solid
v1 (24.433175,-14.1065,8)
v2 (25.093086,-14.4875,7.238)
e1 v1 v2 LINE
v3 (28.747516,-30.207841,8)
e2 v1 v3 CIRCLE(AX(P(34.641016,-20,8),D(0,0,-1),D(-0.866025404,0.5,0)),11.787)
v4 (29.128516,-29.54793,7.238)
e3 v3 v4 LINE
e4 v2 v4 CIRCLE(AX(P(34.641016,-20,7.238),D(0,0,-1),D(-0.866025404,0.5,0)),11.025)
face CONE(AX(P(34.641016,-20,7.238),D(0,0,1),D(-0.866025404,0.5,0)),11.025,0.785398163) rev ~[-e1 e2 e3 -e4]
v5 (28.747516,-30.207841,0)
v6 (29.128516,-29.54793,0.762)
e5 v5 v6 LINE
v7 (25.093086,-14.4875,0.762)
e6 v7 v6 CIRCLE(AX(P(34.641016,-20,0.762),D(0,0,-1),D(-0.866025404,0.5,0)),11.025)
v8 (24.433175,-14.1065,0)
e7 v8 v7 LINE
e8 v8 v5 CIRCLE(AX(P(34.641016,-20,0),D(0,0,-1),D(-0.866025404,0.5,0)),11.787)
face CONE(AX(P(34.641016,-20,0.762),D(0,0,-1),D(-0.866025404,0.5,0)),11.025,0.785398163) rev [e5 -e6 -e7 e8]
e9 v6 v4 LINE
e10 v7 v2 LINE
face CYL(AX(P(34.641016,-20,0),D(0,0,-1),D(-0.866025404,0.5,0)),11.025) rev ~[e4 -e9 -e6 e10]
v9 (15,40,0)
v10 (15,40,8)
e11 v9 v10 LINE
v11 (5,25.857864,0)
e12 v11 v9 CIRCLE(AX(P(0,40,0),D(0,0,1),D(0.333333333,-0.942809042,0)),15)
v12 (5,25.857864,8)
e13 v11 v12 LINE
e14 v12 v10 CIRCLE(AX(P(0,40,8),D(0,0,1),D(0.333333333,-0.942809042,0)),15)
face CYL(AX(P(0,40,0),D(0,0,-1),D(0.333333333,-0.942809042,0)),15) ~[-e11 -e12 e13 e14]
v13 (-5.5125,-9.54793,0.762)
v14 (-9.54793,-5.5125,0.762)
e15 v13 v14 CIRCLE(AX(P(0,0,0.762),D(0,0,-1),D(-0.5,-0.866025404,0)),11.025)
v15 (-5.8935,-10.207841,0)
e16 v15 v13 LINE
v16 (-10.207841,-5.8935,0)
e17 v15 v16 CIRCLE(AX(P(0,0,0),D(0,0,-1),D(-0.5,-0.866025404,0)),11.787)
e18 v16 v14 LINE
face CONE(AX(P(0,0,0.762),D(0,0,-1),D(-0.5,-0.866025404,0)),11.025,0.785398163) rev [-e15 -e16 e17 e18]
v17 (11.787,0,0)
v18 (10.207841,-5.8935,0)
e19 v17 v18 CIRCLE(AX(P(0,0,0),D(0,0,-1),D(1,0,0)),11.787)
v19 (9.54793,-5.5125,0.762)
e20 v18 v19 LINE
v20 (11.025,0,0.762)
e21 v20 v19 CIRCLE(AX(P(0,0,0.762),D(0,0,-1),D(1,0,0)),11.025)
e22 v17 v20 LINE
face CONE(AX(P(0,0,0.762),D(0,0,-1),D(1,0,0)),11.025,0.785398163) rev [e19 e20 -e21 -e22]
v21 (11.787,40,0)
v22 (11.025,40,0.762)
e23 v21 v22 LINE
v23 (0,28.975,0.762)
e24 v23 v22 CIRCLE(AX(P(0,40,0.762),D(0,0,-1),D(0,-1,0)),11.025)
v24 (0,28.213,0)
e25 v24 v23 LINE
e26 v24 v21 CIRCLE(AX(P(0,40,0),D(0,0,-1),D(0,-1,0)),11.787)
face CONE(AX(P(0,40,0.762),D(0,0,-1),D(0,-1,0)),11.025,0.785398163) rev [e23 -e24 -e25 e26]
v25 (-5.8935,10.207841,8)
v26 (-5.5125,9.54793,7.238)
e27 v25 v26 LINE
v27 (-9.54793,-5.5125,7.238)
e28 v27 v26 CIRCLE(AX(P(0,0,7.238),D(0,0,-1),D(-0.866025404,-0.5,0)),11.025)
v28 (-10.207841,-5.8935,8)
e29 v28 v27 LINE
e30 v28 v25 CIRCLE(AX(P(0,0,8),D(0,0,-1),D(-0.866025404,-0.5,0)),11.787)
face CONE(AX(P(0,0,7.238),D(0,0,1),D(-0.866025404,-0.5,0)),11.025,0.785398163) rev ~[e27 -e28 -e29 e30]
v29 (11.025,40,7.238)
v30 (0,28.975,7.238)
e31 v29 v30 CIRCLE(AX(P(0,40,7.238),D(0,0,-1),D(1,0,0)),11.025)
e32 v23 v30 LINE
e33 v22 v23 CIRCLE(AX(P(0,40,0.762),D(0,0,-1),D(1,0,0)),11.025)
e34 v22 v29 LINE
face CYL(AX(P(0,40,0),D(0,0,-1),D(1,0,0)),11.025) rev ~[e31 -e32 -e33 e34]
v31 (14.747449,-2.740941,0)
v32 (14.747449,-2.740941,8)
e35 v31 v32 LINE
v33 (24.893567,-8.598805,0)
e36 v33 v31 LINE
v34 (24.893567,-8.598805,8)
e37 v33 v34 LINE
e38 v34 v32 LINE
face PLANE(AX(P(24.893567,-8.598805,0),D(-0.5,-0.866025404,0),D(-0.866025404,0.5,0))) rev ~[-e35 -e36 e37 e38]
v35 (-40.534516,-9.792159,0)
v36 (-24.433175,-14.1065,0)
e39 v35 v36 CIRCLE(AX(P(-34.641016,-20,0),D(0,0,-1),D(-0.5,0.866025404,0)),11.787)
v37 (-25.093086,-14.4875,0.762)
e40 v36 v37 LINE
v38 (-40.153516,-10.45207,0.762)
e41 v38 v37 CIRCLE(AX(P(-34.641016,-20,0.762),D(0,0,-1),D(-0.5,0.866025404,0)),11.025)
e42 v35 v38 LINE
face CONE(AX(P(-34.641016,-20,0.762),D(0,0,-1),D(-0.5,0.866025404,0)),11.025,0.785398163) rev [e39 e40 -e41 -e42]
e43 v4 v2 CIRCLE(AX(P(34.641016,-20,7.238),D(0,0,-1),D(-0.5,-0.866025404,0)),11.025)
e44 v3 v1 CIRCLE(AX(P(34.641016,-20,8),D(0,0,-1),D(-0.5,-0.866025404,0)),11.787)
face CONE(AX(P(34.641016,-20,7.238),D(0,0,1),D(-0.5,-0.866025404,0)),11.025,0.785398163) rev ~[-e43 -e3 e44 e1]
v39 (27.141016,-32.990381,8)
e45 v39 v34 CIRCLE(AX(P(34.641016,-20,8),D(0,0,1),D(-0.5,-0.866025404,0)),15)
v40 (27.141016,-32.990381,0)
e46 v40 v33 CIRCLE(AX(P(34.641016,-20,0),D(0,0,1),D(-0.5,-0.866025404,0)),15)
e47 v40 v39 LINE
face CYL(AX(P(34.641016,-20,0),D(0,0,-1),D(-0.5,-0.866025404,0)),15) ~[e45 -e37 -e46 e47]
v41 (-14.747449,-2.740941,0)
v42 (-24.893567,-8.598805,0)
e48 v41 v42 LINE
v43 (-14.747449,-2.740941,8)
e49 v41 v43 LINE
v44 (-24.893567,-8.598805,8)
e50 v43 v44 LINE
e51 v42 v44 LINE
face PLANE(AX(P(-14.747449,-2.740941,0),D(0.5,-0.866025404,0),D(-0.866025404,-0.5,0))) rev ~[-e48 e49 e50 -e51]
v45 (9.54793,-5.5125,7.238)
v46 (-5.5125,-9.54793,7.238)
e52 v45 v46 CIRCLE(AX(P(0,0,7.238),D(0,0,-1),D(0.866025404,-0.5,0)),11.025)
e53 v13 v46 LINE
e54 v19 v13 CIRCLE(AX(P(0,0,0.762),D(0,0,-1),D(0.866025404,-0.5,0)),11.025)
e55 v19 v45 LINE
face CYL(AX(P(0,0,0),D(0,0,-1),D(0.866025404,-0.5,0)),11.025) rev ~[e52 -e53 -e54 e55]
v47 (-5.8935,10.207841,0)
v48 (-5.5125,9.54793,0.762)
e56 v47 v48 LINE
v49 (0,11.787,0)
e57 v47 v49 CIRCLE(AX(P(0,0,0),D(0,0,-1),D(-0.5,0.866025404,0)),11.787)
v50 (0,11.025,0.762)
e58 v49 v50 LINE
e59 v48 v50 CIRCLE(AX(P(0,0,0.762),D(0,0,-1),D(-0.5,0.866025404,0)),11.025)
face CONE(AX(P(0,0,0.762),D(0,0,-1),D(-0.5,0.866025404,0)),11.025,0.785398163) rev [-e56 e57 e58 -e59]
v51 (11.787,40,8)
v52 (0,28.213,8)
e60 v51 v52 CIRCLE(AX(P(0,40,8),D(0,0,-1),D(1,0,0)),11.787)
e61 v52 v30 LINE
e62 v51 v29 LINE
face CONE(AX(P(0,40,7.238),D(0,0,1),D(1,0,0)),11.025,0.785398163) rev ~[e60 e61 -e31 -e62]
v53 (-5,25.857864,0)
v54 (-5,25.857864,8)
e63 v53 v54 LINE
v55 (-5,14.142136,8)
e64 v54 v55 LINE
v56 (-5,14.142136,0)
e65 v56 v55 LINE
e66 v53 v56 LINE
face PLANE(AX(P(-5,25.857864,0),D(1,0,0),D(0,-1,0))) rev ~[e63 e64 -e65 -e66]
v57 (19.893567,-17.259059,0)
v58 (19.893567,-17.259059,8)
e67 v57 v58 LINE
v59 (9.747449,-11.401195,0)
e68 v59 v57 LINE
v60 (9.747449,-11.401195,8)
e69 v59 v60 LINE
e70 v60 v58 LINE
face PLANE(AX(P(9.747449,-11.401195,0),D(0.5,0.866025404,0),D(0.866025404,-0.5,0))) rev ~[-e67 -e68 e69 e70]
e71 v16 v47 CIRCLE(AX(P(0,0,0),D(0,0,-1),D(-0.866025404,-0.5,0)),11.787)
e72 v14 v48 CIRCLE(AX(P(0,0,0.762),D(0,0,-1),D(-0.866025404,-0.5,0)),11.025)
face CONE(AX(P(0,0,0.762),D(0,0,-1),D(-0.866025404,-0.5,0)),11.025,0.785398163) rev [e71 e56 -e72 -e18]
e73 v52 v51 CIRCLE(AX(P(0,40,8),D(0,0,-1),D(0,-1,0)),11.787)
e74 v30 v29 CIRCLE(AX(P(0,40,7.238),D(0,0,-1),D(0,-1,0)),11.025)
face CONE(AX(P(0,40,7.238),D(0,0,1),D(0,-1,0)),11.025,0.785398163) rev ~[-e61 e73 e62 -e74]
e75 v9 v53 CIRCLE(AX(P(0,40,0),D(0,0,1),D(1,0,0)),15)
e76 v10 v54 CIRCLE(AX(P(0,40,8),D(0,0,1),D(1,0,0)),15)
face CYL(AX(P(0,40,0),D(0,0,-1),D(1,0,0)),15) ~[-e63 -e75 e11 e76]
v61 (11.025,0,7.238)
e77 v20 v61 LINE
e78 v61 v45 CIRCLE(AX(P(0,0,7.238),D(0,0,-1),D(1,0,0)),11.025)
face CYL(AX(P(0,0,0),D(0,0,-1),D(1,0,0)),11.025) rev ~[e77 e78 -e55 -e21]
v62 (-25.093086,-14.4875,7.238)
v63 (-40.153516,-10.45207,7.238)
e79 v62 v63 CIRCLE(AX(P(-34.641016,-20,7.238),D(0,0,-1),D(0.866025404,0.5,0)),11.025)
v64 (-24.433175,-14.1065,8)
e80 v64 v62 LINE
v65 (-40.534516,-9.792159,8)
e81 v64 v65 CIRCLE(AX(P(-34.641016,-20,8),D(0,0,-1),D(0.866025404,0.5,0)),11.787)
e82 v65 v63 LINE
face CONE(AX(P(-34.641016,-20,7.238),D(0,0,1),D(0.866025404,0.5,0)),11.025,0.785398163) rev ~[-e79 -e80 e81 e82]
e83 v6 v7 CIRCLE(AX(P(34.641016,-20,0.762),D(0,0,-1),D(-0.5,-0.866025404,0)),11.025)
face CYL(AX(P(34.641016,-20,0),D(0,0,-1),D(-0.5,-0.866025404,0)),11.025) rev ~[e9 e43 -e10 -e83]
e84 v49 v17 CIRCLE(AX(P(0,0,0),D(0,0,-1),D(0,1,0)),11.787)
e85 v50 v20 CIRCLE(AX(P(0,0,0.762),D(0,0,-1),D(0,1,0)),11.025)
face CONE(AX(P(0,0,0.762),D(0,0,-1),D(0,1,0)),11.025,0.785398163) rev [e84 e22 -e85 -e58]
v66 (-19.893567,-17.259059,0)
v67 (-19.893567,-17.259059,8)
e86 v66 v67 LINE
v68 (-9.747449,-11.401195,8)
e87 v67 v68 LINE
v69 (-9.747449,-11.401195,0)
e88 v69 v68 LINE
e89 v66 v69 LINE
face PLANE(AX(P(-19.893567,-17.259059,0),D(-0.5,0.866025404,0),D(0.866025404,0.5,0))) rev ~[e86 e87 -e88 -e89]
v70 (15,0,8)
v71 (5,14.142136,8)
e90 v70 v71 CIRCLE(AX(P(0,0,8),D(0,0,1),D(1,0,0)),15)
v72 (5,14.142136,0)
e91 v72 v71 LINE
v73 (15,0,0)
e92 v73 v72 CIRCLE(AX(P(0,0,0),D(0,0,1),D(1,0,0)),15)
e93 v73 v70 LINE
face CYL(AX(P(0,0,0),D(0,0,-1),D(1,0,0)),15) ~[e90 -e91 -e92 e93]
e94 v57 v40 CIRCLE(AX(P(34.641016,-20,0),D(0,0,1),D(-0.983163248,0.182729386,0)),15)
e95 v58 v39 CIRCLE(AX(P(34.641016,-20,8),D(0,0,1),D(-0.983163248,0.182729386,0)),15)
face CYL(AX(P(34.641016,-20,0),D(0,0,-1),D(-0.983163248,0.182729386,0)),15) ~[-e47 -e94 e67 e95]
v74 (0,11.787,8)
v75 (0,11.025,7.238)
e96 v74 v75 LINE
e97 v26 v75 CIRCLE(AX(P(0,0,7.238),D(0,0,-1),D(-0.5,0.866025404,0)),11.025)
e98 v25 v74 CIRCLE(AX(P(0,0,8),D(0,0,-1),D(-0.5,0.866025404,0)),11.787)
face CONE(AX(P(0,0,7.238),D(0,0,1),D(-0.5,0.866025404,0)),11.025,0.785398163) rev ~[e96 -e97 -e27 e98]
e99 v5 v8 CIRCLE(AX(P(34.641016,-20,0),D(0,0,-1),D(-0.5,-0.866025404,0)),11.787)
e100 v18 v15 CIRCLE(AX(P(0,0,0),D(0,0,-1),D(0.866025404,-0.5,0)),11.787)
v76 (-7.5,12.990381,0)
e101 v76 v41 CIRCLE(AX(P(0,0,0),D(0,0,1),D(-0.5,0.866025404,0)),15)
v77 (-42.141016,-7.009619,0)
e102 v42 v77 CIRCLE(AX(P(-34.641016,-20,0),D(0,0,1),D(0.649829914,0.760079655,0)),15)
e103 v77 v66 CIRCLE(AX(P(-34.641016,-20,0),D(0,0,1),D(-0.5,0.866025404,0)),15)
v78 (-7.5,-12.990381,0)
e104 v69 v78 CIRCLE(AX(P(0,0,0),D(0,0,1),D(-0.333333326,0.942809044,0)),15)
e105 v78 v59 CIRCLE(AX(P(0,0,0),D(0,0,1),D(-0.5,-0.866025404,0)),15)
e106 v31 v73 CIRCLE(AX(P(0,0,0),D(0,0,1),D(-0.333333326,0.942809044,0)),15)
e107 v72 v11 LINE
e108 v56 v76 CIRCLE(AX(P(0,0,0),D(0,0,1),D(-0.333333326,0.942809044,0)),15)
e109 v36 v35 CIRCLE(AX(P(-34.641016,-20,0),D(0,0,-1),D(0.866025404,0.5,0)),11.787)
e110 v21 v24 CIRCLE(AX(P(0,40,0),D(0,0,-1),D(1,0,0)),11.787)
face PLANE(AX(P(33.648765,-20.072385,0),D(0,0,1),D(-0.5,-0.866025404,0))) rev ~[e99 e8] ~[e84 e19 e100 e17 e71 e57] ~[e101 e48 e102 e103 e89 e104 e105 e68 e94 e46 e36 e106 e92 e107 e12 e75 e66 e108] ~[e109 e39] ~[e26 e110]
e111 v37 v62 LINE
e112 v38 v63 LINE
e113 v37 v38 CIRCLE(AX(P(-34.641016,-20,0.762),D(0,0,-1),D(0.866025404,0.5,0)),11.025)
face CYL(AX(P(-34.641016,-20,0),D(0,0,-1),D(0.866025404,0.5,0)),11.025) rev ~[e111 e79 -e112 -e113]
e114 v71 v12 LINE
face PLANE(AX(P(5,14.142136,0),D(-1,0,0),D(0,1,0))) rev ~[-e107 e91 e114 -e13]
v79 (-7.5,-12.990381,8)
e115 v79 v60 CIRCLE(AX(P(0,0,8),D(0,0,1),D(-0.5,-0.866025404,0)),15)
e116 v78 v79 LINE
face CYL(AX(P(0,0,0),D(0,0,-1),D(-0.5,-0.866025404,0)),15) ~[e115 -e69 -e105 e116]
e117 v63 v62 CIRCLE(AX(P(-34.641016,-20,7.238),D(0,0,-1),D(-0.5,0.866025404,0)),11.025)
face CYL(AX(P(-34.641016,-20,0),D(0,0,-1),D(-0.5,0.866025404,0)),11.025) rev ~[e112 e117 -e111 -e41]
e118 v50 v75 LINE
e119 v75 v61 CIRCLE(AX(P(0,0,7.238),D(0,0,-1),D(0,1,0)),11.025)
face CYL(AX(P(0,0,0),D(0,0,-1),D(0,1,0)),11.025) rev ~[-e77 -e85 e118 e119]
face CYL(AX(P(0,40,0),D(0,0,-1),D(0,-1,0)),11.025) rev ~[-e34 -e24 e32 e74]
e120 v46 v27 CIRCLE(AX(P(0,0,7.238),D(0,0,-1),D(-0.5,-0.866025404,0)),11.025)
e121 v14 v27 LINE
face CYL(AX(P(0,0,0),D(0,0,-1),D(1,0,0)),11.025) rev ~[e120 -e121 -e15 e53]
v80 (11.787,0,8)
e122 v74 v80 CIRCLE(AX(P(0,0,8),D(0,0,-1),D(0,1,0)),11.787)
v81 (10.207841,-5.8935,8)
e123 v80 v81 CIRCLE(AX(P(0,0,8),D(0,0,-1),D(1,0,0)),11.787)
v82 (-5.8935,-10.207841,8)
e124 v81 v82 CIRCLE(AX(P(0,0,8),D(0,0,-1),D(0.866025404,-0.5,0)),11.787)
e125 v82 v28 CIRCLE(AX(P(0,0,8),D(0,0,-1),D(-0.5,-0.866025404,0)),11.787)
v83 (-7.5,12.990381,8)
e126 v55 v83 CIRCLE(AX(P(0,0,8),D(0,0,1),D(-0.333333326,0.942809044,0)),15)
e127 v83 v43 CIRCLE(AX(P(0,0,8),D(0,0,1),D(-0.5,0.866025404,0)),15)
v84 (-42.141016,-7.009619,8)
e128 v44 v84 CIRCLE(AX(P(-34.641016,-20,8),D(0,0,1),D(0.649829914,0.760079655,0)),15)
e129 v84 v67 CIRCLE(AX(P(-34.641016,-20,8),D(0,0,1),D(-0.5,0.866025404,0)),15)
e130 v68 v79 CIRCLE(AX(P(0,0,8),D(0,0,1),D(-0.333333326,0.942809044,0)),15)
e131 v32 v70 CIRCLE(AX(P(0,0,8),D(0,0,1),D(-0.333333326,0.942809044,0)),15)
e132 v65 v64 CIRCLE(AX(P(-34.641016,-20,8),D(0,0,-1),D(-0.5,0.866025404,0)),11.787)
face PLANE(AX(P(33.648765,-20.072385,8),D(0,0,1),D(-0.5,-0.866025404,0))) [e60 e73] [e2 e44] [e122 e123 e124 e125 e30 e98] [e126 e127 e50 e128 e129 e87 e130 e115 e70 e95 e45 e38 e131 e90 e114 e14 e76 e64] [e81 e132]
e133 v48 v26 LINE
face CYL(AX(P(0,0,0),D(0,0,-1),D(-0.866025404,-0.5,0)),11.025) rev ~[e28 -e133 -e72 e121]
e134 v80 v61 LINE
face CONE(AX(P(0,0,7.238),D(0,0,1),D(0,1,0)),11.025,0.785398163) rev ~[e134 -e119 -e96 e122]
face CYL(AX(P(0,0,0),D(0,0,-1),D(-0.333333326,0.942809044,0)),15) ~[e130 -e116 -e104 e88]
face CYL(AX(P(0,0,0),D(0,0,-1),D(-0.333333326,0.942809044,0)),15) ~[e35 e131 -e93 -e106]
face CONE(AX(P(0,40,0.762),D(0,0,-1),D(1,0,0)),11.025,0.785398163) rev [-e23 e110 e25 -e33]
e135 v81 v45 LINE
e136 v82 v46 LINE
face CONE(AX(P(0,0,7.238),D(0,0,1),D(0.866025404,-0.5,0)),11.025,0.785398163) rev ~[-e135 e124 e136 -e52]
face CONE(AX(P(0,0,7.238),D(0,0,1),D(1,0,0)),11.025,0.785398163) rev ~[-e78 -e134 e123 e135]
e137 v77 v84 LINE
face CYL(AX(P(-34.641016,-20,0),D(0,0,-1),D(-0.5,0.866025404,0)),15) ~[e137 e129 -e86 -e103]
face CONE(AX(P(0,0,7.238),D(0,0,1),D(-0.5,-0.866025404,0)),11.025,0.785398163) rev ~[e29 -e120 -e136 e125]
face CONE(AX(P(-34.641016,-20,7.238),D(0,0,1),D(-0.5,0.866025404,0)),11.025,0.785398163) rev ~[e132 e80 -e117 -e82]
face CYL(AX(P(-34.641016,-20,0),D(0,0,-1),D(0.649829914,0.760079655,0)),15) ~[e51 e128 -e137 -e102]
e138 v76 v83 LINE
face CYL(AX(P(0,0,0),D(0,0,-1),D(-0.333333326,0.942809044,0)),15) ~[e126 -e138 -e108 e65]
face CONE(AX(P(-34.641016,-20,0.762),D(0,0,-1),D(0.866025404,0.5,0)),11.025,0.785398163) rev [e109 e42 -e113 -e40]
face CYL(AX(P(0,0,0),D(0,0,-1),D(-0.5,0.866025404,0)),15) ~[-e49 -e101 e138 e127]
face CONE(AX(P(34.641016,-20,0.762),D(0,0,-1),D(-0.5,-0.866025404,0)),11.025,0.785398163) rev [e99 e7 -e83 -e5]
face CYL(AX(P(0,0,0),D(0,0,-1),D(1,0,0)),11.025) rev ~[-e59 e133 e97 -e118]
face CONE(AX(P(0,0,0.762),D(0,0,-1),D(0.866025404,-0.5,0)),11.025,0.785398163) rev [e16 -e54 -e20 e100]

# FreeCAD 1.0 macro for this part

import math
import FreeCAD as App
import Part
import Sketcher
from FreeCAD import Vector
Q = App.Units.Quantity


def edges_at(feature, points):
    """Names of the edges that pass closest to the given points."""
    edges = feature.Shape.Edges
    near = lambda p: min(range(len(edges)), key=lambda i: edges[i].distToShape(Part.Vertex(*p))[0])
    return sorted({f"Edge{near(p) + 1}" for p in points})

doc = App.newDocument("Part")
params = doc.addObject("Spreadsheet::Sheet", "Params")
for row, (alias, value) in enumerate([
    ("sketch1_radius", "15 mm"),
    ("pad1_length", "8 mm"),
    ("chamfer_size", "0.762 mm"),
], start=1):
    params.set(f"A{row}", alias)
    params.set(f"B{row}", "=" + value)
    params.setAlias(f"B{row}", alias)

body = doc.addObject("PartDesign::Body", "Body")

# Sketch on XY plane
sketch1 = doc.addObject("Sketcher::SketchObject", "Sketch")
body.addObject(sketch1)
sketch1.AttachmentSupport = (doc.XY_Plane, [""])
sketch1.MapMode = "FlatFace"
sketch1.addGeometry(Part.LineSegment(Vector(5, 14.142136, 0), Vector(5, 25.857864, 0)), False)
sketch1.addGeometry(Part.ArcOfCircle(Part.Circle(Vector(0, 40, 0), Vector(0, 0, 1), 15), math.radians(-70.528779), math.radians(0)), False)
sketch1.addGeometry(Part.ArcOfCircle(Part.Circle(Vector(0, 40, 0), Vector(0, 0, 1), 15), math.radians(0), math.radians(250.52878)), False)
sketch1.addGeometry(Part.LineSegment(Vector(-5, 25.857864, 0), Vector(-5, 14.142136, 0)), False)
sketch1.addGeometry(Part.ArcOfCircle(Part.Circle(Vector(0, 0, 0), Vector(0, 0, 1), 15), math.radians(109.47122), math.radians(360)), False)
sketch1.addGeometry(Part.ArcOfCircle(Part.Circle(Vector(0, 0, 0), Vector(0, 0, 1), 15), math.radians(0), math.radians(70.528779)), False)
sketch1.addGeometry(Part.ArcOfCircle(Part.Circle(Vector(0, 0, 0), Vector(0, 0, 1), 11.025), math.radians(90), math.radians(360)), False)
sketch1.addGeometry(Part.ArcOfCircle(Part.Circle(Vector(0, 0, 0), Vector(0, 0, 1), 11.025), math.radians(0), math.radians(90)), False)
sketch1.addGeometry(Part.ArcOfCircle(Part.Circle(Vector(0, 40, 0), Vector(0, 0, 1), 11.025), math.radians(0), math.radians(270)), False)
sketch1.addGeometry(Part.ArcOfCircle(Part.Circle(Vector(0, 40, 0), Vector(0, 0, 1), 11.025), math.radians(-90), math.radians(0)), False)
sketch1.addConstraint(Sketcher.Constraint("Coincident", 0, 2, 1, 1))
sketch1.addConstraint(Sketcher.Constraint("Tangent", 1, 2, 2, 1))
sketch1.addConstraint(Sketcher.Constraint("Coincident", 2, 2, 3, 1))
sketch1.addConstraint(Sketcher.Constraint("Coincident", 3, 2, 4, 1))
sketch1.addConstraint(Sketcher.Constraint("Tangent", 4, 2, 5, 1))
sketch1.addConstraint(Sketcher.Constraint("Coincident", 5, 2, 0, 1))
sketch1.addConstraint(Sketcher.Constraint("Tangent", 6, 1, 7, 2))
sketch1.addConstraint(Sketcher.Constraint("Coincident", 7, 1, 6, 2))
sketch1.addConstraint(Sketcher.Constraint("Tangent", 8, 1, 9, 2))
sketch1.addConstraint(Sketcher.Constraint("Coincident", 9, 1, 8, 2))
sketch1.addConstraint(Sketcher.Constraint("Vertical", 0))
sketch1.addConstraint(Sketcher.Constraint("Vertical", 3))
sketch1.addConstraint(Sketcher.Constraint("Coincident", 4, 3, -1, 1))
sketch1.addConstraint(Sketcher.Constraint("Coincident", 6, 3, -1, 1))
sketch1.addConstraint(Sketcher.Constraint("Coincident", 8, 3, 1, 3))
sketch1.addConstraint(Sketcher.Constraint("Equal", 1, 2))
sketch1.addConstraint(Sketcher.Constraint("Equal", 2, 4))
sketch1.addConstraint(Sketcher.Constraint("Equal", 4, 5))
sketch1.addConstraint(Sketcher.Constraint("Equal", 7, 8))
sketch1.addConstraint(Sketcher.Constraint("Symmetric", 0, 2, 2, 2, -2))
sketch1.addConstraint(Sketcher.Constraint("PointOnObject", 4, 2, -1))
sketch1.addConstraint(Sketcher.Constraint("PointOnObject", 6, 1, -2))
sketch1.addConstraint(Sketcher.Constraint("PointOnObject", 7, 1, -1))
sketch1.addConstraint(Sketcher.Constraint("PointOnObject", 9, 1, -2))
sketch1.addConstraint(Sketcher.Constraint("Horizontal", 9, 3, 1, 2))
sketch1.addConstraint(Sketcher.Constraint("Horizontal", 1, 2, 8, 1))
sketch1.addConstraint(Sketcher.Constraint("Radius", 1, Q("15 mm")))
sketch1.addConstraint(Sketcher.Constraint("DistanceY", -1, 1, 1, 3, Q("40 mm")))
sketch1.addConstraint(Sketcher.Constraint("DistanceX", -1, 1, 0, 2, Q("5 mm")))
sketch1.addConstraint(Sketcher.Constraint("Radius", 6, Q("11.025 mm")))
sketch1.setExpression("Constraints[26]", "Params.sketch1_radius")
pad1 = doc.addObject("PartDesign::Pad", "Pad")
body.addObject(pad1)
pad1.Profile = sketch1
pad1.setExpression("Length", "Params.pad1_length")
body2 = doc.addObject("PartDesign::Body", "Body001")
doc.recompute()

body2.BaseFeature = body
doc.recompute()

body3 = doc.addObject("PartDesign::Body", "Body002")
body3.BaseFeature = body
body3.Placement = App.Placement(Vector(0, 0, 0), App.Rotation(Vector(0, 0, 1), 120))
boolean = doc.addObject("PartDesign::Boolean", "Boolean")
body2.addObject(boolean)
boolean.Type = "Fuse"
boolean.addObjects([body3])
doc.recompute()

body.Placement = App.Placement(Vector(0, 0, 0), App.Rotation(Vector(0, 0, 1), 240))
boolean2 = doc.addObject("PartDesign::Boolean", "Boolean001")
body2.addObject(boolean2)
boolean2.Type = "Fuse"
boolean2.addObjects([body])
doc.recompute()

chamfer = doc.addObject("PartDesign::Chamfer", "Chamfer")
body2.addObject(chamfer)
chamfer.Base = (boolean2, edges_at(boolean2, [
    (-7.796, 47.796, 8),
    (2.853, -10.649, 8),
    (-37.494, -30.649, 8),
    (45.29, -17.147, 8),
    (-37.494, -30.649, 0),
    (2.853, -10.649, 0),
    (45.29, -17.147, 0),
    (-7.796, 47.796, 0),
]))
chamfer.setExpression("Size", "Params.chamfer_size")

doc.recompute()
